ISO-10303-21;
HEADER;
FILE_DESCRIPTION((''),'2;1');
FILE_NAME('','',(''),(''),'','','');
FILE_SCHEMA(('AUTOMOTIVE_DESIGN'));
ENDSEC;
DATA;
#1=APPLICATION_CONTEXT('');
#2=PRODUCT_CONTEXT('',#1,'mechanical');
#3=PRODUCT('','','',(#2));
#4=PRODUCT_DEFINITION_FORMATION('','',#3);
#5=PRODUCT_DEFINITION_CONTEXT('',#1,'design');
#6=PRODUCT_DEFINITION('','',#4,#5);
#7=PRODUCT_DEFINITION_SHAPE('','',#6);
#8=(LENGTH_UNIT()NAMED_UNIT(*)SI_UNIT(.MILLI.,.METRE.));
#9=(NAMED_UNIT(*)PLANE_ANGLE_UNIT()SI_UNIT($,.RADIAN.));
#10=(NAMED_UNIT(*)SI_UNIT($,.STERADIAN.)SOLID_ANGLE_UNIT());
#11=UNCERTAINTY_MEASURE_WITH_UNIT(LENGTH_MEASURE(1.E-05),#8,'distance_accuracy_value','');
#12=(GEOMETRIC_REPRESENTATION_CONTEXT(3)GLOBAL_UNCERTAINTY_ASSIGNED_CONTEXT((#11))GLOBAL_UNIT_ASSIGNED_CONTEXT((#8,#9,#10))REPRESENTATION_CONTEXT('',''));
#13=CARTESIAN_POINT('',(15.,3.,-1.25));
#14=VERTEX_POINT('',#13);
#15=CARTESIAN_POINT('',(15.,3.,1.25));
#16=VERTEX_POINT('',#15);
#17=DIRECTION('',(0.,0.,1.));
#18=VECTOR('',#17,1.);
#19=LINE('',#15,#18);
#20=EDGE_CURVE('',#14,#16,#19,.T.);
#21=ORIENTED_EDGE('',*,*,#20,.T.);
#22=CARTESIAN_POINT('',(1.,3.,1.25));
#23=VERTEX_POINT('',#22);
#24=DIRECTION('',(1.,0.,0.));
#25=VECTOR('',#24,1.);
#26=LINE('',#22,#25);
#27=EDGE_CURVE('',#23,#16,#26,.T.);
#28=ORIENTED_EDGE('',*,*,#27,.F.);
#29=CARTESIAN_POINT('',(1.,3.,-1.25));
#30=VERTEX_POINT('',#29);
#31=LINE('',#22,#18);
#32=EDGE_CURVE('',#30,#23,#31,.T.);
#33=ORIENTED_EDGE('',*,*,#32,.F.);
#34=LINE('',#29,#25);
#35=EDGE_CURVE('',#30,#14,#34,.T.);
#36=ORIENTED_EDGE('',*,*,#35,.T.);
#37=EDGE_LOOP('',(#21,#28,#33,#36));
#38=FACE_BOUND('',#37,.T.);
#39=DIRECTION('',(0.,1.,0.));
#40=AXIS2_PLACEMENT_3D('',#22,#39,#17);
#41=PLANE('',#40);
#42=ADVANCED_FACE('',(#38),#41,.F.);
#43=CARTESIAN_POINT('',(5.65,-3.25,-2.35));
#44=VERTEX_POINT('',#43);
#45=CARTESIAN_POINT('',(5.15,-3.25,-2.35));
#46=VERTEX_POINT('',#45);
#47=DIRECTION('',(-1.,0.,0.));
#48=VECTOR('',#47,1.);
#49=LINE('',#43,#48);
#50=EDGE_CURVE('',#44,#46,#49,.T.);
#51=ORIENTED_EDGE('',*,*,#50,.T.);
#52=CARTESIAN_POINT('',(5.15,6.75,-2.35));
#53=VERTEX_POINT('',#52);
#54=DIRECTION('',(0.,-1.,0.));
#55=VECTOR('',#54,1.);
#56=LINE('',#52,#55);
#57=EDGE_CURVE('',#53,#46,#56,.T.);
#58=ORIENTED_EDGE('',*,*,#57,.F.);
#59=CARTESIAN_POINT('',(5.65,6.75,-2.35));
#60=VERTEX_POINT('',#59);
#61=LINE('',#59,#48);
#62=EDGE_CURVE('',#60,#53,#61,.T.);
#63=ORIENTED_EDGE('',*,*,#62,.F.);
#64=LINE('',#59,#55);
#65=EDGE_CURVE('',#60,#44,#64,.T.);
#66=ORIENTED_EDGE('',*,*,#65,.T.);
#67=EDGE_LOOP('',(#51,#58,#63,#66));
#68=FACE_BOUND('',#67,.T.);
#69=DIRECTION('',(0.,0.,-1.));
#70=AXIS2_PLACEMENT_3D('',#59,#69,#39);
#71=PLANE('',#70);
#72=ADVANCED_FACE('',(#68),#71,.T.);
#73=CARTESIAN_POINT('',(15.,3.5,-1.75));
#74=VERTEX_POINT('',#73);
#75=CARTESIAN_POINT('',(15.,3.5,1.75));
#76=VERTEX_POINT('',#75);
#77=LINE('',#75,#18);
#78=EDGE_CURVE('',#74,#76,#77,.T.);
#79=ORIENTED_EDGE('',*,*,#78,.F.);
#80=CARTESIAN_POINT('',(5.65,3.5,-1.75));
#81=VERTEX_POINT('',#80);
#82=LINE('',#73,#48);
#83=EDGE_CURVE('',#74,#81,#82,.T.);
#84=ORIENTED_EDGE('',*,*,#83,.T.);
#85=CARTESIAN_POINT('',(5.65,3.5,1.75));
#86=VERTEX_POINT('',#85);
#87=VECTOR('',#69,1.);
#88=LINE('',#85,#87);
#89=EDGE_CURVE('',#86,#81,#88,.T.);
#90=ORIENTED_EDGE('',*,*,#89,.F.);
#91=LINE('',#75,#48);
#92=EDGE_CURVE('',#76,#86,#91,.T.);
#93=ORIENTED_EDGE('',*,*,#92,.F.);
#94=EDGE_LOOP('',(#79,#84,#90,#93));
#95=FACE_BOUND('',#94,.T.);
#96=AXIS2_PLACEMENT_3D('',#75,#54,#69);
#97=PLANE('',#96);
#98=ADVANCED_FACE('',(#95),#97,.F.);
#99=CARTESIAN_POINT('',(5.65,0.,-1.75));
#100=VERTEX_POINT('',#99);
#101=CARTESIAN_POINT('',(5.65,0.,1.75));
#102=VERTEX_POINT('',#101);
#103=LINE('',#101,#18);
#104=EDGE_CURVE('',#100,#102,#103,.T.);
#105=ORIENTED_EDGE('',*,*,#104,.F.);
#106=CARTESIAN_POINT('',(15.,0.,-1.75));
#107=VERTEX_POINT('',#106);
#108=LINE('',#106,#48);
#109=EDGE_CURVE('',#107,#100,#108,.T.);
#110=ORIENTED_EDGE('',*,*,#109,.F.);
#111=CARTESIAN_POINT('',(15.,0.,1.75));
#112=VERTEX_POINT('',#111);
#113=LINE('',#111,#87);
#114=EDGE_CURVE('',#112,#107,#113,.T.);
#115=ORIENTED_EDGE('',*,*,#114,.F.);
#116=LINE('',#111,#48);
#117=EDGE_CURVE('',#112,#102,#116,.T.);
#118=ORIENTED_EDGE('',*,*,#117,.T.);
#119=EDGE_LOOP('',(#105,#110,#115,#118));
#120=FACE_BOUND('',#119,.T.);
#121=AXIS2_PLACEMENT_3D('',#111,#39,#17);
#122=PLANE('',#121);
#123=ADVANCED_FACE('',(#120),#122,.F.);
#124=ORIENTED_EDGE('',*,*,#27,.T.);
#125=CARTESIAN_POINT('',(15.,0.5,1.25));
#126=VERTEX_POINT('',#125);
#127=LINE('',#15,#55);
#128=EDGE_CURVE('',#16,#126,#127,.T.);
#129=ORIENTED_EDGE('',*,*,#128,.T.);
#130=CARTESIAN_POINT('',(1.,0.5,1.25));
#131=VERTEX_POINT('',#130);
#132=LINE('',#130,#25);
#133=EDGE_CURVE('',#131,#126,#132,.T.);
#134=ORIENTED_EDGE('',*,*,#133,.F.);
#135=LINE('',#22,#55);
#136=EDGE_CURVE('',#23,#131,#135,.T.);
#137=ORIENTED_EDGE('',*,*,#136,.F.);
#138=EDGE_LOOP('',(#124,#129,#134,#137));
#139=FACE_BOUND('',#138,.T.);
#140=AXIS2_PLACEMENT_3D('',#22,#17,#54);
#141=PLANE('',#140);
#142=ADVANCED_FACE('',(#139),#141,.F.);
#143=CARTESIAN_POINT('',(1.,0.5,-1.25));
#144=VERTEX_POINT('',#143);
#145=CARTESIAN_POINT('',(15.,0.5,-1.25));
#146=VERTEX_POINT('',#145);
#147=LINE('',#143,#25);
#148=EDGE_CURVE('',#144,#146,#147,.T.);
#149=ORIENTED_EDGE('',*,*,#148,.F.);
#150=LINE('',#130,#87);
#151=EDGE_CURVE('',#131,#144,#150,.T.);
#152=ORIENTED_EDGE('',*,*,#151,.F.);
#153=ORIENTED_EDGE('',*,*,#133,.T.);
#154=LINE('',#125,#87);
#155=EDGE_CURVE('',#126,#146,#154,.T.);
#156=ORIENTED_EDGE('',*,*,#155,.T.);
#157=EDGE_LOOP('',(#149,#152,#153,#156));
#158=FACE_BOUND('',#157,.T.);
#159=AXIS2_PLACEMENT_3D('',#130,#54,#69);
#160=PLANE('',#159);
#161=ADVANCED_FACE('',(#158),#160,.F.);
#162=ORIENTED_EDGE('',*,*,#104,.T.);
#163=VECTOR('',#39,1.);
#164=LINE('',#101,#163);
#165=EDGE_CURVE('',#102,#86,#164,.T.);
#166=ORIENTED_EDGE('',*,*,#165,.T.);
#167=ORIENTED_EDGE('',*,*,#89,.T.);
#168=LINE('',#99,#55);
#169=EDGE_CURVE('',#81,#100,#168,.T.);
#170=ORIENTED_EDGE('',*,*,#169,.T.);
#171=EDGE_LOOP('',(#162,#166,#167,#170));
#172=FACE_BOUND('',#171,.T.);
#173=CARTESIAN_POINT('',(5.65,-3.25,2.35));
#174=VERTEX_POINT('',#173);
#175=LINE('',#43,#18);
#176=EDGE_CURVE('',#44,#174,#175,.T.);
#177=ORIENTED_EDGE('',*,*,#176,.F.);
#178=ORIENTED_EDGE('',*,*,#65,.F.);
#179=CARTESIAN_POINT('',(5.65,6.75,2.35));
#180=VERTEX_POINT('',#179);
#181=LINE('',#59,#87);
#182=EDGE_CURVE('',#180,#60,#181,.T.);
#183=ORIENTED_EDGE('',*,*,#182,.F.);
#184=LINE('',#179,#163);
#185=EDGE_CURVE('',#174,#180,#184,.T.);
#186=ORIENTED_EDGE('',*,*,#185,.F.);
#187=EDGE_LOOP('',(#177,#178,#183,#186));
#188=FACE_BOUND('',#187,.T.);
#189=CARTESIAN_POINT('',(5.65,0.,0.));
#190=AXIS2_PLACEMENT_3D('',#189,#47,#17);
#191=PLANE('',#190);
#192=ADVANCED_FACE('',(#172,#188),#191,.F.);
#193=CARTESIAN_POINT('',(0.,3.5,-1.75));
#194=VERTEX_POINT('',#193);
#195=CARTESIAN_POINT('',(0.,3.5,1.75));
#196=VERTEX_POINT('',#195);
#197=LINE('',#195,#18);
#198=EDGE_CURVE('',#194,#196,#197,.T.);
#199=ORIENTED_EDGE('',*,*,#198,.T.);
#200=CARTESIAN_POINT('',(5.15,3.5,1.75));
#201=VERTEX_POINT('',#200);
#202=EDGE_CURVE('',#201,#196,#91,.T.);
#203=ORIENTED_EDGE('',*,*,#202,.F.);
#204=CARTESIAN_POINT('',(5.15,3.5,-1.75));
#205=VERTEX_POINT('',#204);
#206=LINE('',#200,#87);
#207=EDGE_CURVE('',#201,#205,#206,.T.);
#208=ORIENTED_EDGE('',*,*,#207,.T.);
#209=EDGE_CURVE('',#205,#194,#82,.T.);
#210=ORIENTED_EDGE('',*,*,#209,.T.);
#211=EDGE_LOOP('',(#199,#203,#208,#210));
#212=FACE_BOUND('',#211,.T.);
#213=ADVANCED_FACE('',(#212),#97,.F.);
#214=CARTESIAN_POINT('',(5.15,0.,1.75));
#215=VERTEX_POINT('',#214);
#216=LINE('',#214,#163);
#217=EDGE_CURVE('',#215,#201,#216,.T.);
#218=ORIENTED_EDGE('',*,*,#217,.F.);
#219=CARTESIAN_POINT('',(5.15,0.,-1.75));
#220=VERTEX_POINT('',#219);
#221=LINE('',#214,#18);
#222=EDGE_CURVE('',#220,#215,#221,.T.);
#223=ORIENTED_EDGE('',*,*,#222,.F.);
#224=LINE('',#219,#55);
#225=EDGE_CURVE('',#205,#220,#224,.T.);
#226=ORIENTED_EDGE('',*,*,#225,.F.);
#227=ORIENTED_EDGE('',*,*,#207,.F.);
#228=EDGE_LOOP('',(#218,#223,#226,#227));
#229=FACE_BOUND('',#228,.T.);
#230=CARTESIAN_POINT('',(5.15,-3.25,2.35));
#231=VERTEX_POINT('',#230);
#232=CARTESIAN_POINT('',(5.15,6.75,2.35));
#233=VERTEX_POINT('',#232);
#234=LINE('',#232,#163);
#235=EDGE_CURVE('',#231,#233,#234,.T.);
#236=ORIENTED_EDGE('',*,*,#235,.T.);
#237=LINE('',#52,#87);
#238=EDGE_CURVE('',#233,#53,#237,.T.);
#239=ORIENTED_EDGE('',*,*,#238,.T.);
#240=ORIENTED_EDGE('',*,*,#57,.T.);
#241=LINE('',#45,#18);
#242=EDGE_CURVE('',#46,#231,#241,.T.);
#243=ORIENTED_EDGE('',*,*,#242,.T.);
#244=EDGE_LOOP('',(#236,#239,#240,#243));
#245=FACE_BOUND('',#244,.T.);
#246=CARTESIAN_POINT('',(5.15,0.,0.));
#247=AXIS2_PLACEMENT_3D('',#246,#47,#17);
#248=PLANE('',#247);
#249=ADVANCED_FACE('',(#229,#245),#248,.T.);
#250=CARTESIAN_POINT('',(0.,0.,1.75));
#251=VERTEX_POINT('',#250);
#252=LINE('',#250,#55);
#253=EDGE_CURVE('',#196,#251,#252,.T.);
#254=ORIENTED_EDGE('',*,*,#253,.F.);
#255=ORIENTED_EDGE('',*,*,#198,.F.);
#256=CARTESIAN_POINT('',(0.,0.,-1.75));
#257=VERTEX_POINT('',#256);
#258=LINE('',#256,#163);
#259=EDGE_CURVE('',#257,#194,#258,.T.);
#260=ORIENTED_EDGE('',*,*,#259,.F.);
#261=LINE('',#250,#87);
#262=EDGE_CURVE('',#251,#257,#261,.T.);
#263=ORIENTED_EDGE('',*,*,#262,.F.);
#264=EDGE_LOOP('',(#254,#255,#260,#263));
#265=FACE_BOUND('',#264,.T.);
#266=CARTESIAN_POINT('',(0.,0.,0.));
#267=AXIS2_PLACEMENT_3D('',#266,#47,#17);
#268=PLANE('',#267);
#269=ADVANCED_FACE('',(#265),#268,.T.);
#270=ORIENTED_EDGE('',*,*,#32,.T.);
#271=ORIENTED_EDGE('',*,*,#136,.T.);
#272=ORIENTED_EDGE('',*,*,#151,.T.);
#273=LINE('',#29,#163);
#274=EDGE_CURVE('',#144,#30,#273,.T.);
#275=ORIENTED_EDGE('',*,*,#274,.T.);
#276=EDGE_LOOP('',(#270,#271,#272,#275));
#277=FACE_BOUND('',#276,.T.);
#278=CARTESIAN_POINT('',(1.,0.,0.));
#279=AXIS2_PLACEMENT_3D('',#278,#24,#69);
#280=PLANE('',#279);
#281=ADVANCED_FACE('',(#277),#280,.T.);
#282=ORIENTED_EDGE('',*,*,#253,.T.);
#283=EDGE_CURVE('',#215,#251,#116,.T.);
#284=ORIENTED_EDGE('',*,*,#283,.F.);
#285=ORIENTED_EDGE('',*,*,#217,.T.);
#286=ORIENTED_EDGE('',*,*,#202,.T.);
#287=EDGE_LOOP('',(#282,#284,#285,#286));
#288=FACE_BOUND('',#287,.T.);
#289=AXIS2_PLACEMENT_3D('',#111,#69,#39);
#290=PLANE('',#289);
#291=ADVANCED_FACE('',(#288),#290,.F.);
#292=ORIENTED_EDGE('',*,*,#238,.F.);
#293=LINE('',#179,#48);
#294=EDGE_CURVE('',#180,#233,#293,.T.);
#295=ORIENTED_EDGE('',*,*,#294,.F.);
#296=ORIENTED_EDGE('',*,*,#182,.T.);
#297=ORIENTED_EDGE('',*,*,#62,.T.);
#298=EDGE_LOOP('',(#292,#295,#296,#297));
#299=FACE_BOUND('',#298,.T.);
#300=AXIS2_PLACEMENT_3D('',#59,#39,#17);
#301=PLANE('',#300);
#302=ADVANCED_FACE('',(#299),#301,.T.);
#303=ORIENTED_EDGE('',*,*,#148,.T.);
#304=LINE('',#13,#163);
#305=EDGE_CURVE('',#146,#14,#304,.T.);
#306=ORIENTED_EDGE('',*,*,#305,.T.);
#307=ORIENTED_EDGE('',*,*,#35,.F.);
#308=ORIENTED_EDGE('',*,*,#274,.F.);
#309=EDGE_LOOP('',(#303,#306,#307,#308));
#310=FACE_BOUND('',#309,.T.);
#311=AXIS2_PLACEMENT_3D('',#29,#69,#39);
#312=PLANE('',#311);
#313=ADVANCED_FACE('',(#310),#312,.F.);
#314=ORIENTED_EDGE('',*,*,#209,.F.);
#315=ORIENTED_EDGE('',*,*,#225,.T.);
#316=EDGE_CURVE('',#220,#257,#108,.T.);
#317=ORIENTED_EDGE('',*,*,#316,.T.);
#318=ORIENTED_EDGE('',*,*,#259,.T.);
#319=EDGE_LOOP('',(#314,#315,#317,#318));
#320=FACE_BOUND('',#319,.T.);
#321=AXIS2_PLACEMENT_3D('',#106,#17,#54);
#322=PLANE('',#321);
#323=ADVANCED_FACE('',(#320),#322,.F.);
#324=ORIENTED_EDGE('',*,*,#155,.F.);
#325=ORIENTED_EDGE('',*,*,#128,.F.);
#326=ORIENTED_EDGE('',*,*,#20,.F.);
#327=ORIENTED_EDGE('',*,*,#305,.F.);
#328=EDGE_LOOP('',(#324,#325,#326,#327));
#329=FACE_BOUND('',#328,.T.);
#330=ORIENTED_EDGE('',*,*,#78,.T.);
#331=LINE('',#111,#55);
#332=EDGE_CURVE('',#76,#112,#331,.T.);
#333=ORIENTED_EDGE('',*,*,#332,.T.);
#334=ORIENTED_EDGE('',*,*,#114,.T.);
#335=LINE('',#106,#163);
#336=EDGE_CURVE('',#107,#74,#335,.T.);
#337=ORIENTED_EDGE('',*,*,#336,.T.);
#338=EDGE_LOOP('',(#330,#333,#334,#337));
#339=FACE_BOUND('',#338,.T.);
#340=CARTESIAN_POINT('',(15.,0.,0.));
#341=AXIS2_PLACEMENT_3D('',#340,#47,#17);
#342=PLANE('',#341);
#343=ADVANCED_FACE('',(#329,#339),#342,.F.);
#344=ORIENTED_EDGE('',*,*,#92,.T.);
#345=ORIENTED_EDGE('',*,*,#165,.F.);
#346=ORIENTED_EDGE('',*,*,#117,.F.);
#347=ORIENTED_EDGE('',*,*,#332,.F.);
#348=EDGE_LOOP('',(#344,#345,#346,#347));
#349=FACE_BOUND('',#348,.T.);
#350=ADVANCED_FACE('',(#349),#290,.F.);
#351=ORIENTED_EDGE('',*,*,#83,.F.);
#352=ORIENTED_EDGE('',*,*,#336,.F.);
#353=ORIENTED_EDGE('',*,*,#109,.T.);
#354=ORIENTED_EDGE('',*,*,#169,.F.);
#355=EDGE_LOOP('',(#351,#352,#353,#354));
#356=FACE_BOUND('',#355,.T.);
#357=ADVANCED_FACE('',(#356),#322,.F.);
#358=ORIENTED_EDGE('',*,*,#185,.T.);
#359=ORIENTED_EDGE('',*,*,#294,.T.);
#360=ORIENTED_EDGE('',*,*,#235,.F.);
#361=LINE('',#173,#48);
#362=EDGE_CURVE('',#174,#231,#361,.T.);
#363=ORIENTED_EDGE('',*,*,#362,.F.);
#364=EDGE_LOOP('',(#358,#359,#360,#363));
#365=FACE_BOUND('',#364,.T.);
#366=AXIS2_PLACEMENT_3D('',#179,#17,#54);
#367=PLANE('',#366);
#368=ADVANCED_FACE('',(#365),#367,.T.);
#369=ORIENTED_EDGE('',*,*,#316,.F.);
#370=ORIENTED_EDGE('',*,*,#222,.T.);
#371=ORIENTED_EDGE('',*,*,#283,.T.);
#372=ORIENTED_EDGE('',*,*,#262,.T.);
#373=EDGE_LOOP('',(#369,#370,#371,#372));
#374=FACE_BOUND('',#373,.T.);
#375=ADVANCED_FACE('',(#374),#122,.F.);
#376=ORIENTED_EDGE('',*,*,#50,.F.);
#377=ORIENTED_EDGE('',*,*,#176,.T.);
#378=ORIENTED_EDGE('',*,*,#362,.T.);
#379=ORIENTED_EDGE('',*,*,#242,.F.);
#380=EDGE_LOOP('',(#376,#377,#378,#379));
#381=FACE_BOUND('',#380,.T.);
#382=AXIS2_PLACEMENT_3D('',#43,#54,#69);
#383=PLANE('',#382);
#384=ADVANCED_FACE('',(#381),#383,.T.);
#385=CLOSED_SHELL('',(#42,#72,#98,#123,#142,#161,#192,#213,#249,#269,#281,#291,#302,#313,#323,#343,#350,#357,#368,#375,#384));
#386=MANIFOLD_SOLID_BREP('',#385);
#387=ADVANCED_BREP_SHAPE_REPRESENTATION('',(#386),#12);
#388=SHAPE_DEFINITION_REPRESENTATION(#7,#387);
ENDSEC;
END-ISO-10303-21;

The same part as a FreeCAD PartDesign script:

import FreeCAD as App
import Part
import Sketcher

V = App.Vector


def add_polygon(sketch, points):
    """Adds a closed chain of lines whose ends are joined by coincident constraints."""
    first, n = sketch.GeometryCount, len(points)
    for a, b in zip(points, points[1:] + points[:1]):
        sketch.addGeometry(Part.LineSegment(App.Vector(*a, 0), App.Vector(*b, 0)), False)
    for i in range(n):
        sketch.addConstraint(Sketcher.Constraint("Coincident", first + i, 2, first + (i + 1) % n, 1))

doc = App.newDocument("Part")
body = doc.addObject("PartDesign::Body", "Body")

# Sketch on YZ plane
sketch1 = body.newObject("Sketcher::SketchObject", "Sketch")
sketch1.AttachmentSupport = (doc.getObject("YZ_Plane"), [""])
sketch1.MapMode = "FlatFace"
add_polygon(sketch1, [(3.5, 1.8), (0, 1.8), (0, -1.8), (3.5, -1.8)])  # lines 0-3
sketch1.addConstraint([
    Sketcher.Constraint("Horizontal", 0),
    Sketcher.Constraint("Vertical", 1),
    Sketcher.Constraint("Horizontal", 2),
    Sketcher.Constraint("Vertical", 3),
    Sketcher.Constraint("Symmetric", 0, 2, 1, 2, -1, 1),
    Sketcher.Constraint("Equal", 2, 1),
    Sketcher.Constraint("DistanceX", 0, 2, 0, 1, 3.5),
])
pad1 = body.newObject("PartDesign::Pad", "Pad")
pad1.Profile = sketch1
pad1.Length = 15

# Sketch on YZ plane
sketch2 = body.newObject("Sketcher::SketchObject", "Sketch001")
sketch2.AttachmentSupport = (doc.getObject("YZ_Plane"), [""])
sketch2.MapMode = "FlatFace"
sketch2.AttachmentOffset = App.Placement(V(0, 0, 5.15), App.Rotation())
add_polygon(sketch2, [(6.8, -2.4), (-3.2, -2.4), (-3.2, 2.4), (6.8, 2.4)])  # lines 0-3
sketch2.addConstraint([
    Sketcher.Constraint("Horizontal", 0),
    Sketcher.Constraint("Vertical", 1),
    Sketcher.Constraint("Horizontal", 2),
    Sketcher.Constraint("Vertical", 3),
    Sketcher.Constraint("DistanceX", 0, 2, 0, 1, 10.0),
    Sketcher.Constraint("DistanceY", 1, 1, 1, 2, 4.7),
    Sketcher.Constraint("DistanceX", 0, 2, -1, 1, 3.25),
    Sketcher.Constraint("DistanceY", 0, 2, -1, 1, 2.35),
])
pad2 = body.newObject("PartDesign::Pad", "Pad001")
pad2.Profile = sketch2
pad2.Length = 0.5

# Sketch on YZ plane
sketch3 = body.newObject("Sketcher::SketchObject", "Sketch002")
sketch3.AttachmentSupport = (doc.getObject("YZ_Plane"), [""])
sketch3.MapMode = "FlatFace"
sketch3.AttachmentOffset = App.Placement(V(0, 0, 15), App.Rotation())
add_polygon(sketch3, [(3, 1.2), (0.5, 1.2), (0.5, -1.2), (3, -1.2)])  # lines 0-3
sketch3.addConstraint([
    Sketcher.Constraint("Horizontal", 0),
    Sketcher.Constraint("Vertical", 1),
    Sketcher.Constraint("Horizontal", 2),
    Sketcher.Constraint("Vertical", 3),
    Sketcher.Constraint("Equal", 2, 1),
    Sketcher.Constraint("DistanceX", 0, 2, 0, 1, 2.5),
    Sketcher.Constraint("DistanceX", -1, 1, 2, 2, 3.0),
    Sketcher.Constraint("DistanceY", -1, 1, 0, 2, 1.25),
])
pocket1 = body.newObject("PartDesign::Pocket", "Pocket")
pocket1.Profile = sketch3
pocket1.Length = 14

doc.recompute()
